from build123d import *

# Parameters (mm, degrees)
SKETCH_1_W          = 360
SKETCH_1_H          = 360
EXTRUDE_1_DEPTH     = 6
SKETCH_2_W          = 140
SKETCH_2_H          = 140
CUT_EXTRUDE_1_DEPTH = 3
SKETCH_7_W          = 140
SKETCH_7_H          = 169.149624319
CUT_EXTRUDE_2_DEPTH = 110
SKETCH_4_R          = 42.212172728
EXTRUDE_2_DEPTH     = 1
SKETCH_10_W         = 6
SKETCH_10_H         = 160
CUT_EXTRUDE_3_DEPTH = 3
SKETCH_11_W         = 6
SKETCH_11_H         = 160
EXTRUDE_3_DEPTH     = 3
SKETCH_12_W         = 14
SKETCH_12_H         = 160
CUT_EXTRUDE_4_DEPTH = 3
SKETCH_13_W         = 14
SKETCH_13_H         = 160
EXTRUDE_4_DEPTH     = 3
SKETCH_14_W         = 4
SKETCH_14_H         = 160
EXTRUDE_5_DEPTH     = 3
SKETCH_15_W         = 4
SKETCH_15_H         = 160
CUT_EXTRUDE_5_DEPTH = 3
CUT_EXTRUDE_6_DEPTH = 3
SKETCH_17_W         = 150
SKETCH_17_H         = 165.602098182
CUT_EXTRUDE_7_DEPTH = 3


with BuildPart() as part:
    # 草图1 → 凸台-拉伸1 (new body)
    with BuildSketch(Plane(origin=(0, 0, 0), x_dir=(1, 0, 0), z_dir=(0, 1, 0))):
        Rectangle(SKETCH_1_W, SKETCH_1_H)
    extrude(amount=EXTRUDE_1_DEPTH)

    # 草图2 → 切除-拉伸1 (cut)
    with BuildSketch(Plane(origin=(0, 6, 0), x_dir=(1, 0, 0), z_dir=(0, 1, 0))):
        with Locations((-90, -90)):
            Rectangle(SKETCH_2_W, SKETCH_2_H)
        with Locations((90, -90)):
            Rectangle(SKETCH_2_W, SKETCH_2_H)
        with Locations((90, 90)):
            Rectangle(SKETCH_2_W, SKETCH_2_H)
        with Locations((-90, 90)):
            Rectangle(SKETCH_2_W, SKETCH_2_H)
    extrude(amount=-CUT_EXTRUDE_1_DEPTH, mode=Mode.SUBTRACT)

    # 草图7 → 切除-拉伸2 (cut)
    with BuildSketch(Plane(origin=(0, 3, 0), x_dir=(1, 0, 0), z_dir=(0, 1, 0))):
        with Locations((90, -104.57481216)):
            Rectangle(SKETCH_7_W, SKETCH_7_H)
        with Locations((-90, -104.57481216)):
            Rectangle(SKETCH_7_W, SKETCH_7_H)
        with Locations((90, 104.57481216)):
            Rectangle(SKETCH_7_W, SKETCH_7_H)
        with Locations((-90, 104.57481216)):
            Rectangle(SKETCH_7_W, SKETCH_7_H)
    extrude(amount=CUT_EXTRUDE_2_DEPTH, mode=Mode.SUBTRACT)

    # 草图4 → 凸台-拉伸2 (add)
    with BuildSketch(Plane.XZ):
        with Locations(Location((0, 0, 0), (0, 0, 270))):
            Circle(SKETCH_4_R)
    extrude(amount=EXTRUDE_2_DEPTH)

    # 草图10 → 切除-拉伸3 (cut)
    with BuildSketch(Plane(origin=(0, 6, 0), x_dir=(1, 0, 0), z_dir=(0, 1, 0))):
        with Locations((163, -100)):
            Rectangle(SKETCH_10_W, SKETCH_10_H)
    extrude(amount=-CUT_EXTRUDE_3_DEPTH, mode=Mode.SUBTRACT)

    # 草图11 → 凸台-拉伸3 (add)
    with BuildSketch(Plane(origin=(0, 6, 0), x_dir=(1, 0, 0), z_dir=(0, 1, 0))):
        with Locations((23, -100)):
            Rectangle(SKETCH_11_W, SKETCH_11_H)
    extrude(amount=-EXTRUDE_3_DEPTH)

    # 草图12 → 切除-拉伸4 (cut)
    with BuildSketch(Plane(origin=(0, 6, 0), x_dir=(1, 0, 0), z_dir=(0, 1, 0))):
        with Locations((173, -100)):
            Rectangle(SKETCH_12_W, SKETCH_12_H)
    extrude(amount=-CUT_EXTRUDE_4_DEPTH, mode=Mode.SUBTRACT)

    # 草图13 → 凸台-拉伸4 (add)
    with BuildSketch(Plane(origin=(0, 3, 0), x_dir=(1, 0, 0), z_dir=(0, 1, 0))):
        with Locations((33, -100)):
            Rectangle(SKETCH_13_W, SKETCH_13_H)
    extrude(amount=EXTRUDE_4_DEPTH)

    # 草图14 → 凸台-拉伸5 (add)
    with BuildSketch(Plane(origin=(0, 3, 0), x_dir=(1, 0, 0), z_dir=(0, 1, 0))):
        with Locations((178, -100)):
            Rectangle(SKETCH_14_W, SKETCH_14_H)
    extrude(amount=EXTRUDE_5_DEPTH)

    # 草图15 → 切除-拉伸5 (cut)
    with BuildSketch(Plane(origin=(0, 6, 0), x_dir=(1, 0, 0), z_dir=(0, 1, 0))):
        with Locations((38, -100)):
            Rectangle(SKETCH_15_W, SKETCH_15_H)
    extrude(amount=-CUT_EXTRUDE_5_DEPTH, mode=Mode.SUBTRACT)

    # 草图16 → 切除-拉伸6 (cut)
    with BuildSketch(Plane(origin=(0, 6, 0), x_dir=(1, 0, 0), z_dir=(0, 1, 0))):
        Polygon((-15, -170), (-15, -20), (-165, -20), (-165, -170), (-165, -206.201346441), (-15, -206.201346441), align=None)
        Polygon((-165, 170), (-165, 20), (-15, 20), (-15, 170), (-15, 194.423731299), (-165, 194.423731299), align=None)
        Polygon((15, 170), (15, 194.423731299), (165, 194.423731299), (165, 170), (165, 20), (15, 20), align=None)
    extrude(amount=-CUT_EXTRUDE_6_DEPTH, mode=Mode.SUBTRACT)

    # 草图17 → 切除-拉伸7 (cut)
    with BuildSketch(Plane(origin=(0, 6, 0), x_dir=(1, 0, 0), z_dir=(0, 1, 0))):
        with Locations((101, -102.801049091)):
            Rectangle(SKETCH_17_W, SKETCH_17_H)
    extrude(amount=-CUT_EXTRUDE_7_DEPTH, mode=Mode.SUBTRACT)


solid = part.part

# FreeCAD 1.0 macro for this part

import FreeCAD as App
import Part
import Sketcher
Q = App.Units.Quantity


def add_polygon(sketch, points):
    """Adds a closed chain of lines whose ends are joined by coincident constraints."""
    first, n = sketch.GeometryCount, len(points)
    for a, b in zip(points, points[1:] + points[:1]):
        sketch.addGeometry(Part.LineSegment(App.Vector(*a, 0), App.Vector(*b, 0)), False)
    for i in range(n):
        sketch.addConstraint(Sketcher.Constraint("Coincident", first + i, 2, first + (i + 1) % n, 1))

doc = App.newDocument("Part")
body = doc.addObject("PartDesign::Body", "Body")

# Sketch on XZ plane
sketch1 = body.newObject("Sketcher::SketchObject", "Sketch")
sketch1.AttachmentSupport = (doc.getObject("XZ_Plane"), [""])
sketch1.MapMode = "FlatFace"
add_polygon(sketch1, [(-180, -180), (-180, 180), (180, 180), (180, -180)])  # lines 0-3
sketch1.addConstraint([
    Sketcher.Constraint("Vertical", 0),
    Sketcher.Constraint("Horizontal", 1),
    Sketcher.Constraint("Vertical", 2),
    Sketcher.Constraint("Horizontal", 3),
    Sketcher.Constraint("Symmetric", 0, 2, 2, 2, -1, 1),
    Sketcher.Constraint("Equal", 3, 0),
    Sketcher.Constraint("DistanceX", 1, 1, 1, 2, Q("360 mm")),
])
pad1 = body.newObject("PartDesign::Pad", "Pad")
pad1.Profile = sketch1
pad1.Length = 6
pad1.Reversed = True

# Sketch on XZ plane
sketch2 = body.newObject("Sketcher::SketchObject", "Sketch001")
sketch2.AttachmentSupport = (doc.getObject("XZ_Plane"), [""])
sketch2.MapMode = "FlatFace"
sketch2.AttachmentOffset = App.Placement(App.Vector(0, 0, -6), App.Rotation())
add_polygon(sketch2, [(-160, 20), (-160, 160), (-20, 160), (-20, 20)])  # lines 0-3
add_polygon(sketch2, [(20, 20), (20, 160), (160, 160), (160, 20)])  # lines 4-7
add_polygon(sketch2, [(20, -160), (20, -20), (160, -20), (160, -160)])  # lines 8-11
add_polygon(sketch2, [(-160, -160), (-160, -20), (-20, -20), (-20, -160)])  # lines 12-15
sketch2.addConstraint([
    Sketcher.Constraint("Vertical", 0),
    Sketcher.Constraint("Horizontal", 1),
    Sketcher.Constraint("Vertical", 2),
    Sketcher.Constraint("Horizontal", 3),
    Sketcher.Constraint("Vertical", 4),
    Sketcher.Constraint("Horizontal", 5),
    Sketcher.Constraint("Vertical", 6),
    Sketcher.Constraint("Horizontal", 7),
    Sketcher.Constraint("Vertical", 8),
    Sketcher.Constraint("Horizontal", 9),
    Sketcher.Constraint("Vertical", 10),
    Sketcher.Constraint("Horizontal", 11),
    Sketcher.Constraint("Vertical", 12),
    Sketcher.Constraint("Horizontal", 13),
    Sketcher.Constraint("Vertical", 14),
    Sketcher.Constraint("Horizontal", 15),
    Sketcher.Constraint("Symmetric", 2, 2, 8, 2, -1, 1),
    Sketcher.Constraint("Symmetric", 0, 2, 10, 2, -1, 1),
    Sketcher.Constraint("Symmetric", 6, 2, 12, 2, -1, 1),
    Sketcher.Constraint("Symmetric", 4, 2, 14, 2, -1, 1),
    Sketcher.Constraint("Symmetric", 1, 2, 4, 2, -2),
    Sketcher.Constraint("Symmetric", 3, 2, 6, 2, -2),
    Sketcher.Constraint("Equal", 15, 0),
    Sketcher.Constraint("DistanceX", 1, 1, 1, 2, Q("140 mm")),
    Sketcher.Constraint("DistanceX", 0, 2, -1, 1, Q("160 mm")),
    Sketcher.Constraint("DistanceY", -1, 1, 0, 2, Q("160 mm")),
])
pocket1 = body.newObject("PartDesign::Pocket", "Pocket")
pocket1.Profile = sketch2
pocket1.Length = 3
pocket1.Reversed = True

# Sketch on XZ plane
sketch3 = body.newObject("Sketcher::SketchObject", "Sketch002")
sketch3.AttachmentSupport = (doc.getObject("XZ_Plane"), [""])
sketch3.MapMode = "FlatFace"
sketch3.AttachmentOffset = App.Placement(App.Vector(0, 0, -3), App.Rotation())
add_polygon(sketch3, [(20, 20), (20, 189.149624), (160, 189.149624), (160, 20)])  # lines 0-3
add_polygon(sketch3, [(-160, 20), (-160, 189.149624), (-20, 189.149624), (-20, 20)])  # lines 4-7
add_polygon(sketch3, [(20, -189.149624), (20, -20), (160, -20), (160, -189.149624)])  # lines 8-11
add_polygon(sketch3, [(-160, -189.149624), (-160, -20), (-20, -20), (-20, -189.149624)])  # lines 12-15
sketch3.addConstraint([
    Sketcher.Constraint("Vertical", 0),
    Sketcher.Constraint("Horizontal", 1),
    Sketcher.Constraint("Vertical", 2),
    Sketcher.Constraint("Horizontal", 3),
    Sketcher.Constraint("Vertical", 4),
    Sketcher.Constraint("Horizontal", 5),
    Sketcher.Constraint("Vertical", 6),
    Sketcher.Constraint("Horizontal", 7),
    Sketcher.Constraint("Vertical", 8),
    Sketcher.Constraint("Horizontal", 9),
    Sketcher.Constraint("Vertical", 10),
    Sketcher.Constraint("Horizontal", 11),
    Sketcher.Constraint("Vertical", 12),
    Sketcher.Constraint("Horizontal", 13),
    Sketcher.Constraint("Vertical", 14),
    Sketcher.Constraint("Horizontal", 15),
    Sketcher.Constraint("Symmetric", 6, 2, 8, 2, -1, 1),
    Sketcher.Constraint("Symmetric", 4, 2, 10, 2, -1, 1),
    Sketcher.Constraint("Symmetric", 2, 2, 12, 2, -1, 1),
    Sketcher.Constraint("Symmetric", 0, 2, 14, 2, -1, 1),
    Sketcher.Constraint("Symmetric", 1, 2, 4, 2, -2),
    Sketcher.Constraint("Symmetric", 3, 2, 6, 2, -2),
    Sketcher.Constraint("DistanceX", 1, 1, 1, 2, Q("140 mm")),
    Sketcher.Constraint("DistanceX", -1, 1, 0, 2, Q("20 mm")),
    Sketcher.Constraint("DistanceY", -1, 1, 2, 2, Q("20 mm")),
    Sketcher.Constraint("DistanceY", 0, 1, 0, 2, Q("169.149624 mm")),
])
pocket2 = body.newObject("PartDesign::Pocket", "Pocket001")
pocket2.Profile = sketch3
pocket2.Length = 110

# Sketch on XZ plane
sketch4 = body.newObject("Sketcher::SketchObject", "Sketch003")
sketch4.AttachmentSupport = (doc.getObject("XZ_Plane"), [""])
sketch4.MapMode = "FlatFace"
sketch4.addGeometry(Part.Circle(App.Vector(0, 0, 0), App.Vector(0, 0, 1), 42.212173), False)
sketch4.addConstraint([
    Sketcher.Constraint("Coincident", 0, 3, -1, 1),
    Sketcher.Constraint("Diameter", 0, Q("84.424345 mm")),
])
pad2 = body.newObject("PartDesign::Pad", "Pad001")
pad2.Profile = sketch4
pad2.Length = 1

# Sketch on XZ plane
sketch5 = body.newObject("Sketcher::SketchObject", "Sketch004")
sketch5.AttachmentSupport = (doc.getObject("XZ_Plane"), [""])
sketch5.MapMode = "FlatFace"
sketch5.AttachmentOffset = App.Placement(App.Vector(0, 0, -6), App.Rotation())
add_polygon(sketch5, [(160, 20), (160, 180), (166, 180), (166, 20)])  # lines 0-3
sketch5.addConstraint([
    Sketcher.Constraint("Vertical", 0),
    Sketcher.Constraint("Horizontal", 1),
    Sketcher.Constraint("Vertical", 2),
    Sketcher.Constraint("Horizontal", 3),
    Sketcher.Constraint("DistanceX", 1, 1, 1, 2, Q("6 mm")),
    Sketcher.Constraint("DistanceY", 0, 1, 0, 2, Q("160 mm")),
    Sketcher.Constraint("DistanceX", -1, 1, 0, 2, Q("160 mm")),
    Sketcher.Constraint("DistanceY", -1, 1, 0, 2, Q("180 mm")),
])
pocket3 = body.newObject("PartDesign::Pocket", "Pocket002")
pocket3.Profile = sketch5
pocket3.Length = 3
pocket3.Reversed = True

# Sketch on XZ plane
sketch6 = body.newObject("Sketcher::SketchObject", "Sketch005")
sketch6.AttachmentSupport = (doc.getObject("XZ_Plane"), [""])
sketch6.MapMode = "FlatFace"
sketch6.AttachmentOffset = App.Placement(App.Vector(0, 0, -6), App.Rotation())
add_polygon(sketch6, [(20, 20), (20, 180), (26, 180), (26, 20)])  # lines 0-3
sketch6.addConstraint([
    Sketcher.Constraint("Vertical", 0),
    Sketcher.Constraint("Horizontal", 1),
    Sketcher.Constraint("Vertical", 2),
    Sketcher.Constraint("Horizontal", 3),
    Sketcher.Constraint("DistanceX", 1, 1, 1, 2, Q("6 mm")),
    Sketcher.Constraint("DistanceY", 0, 1, 0, 2, Q("160 mm")),
    Sketcher.Constraint("DistanceX", -1, 1, 0, 2, Q("20 mm")),
    Sketcher.Constraint("DistanceY", -1, 1, 0, 2, Q("180 mm")),
])
pad3 = body.newObject("PartDesign::Pad", "Pad002")
pad3.Profile = sketch6
pad3.Length = 3

# Sketch on XZ plane
sketch7 = body.newObject("Sketcher::SketchObject", "Sketch006")
sketch7.AttachmentSupport = (doc.getObject("XZ_Plane"), [""])
sketch7.MapMode = "FlatFace"
sketch7.AttachmentOffset = App.Placement(App.Vector(0, 0, -6), App.Rotation())
add_polygon(sketch7, [(166, 20), (166, 180), (180, 180), (180, 20)])  # lines 0-3
sketch7.addConstraint([
    Sketcher.Constraint("Vertical", 0),
    Sketcher.Constraint("Horizontal", 1),
    Sketcher.Constraint("Vertical", 2),
    Sketcher.Constraint("Horizontal", 3),
    Sketcher.Constraint("DistanceX", 1, 1, 1, 2, Q("14 mm")),
    Sketcher.Constraint("DistanceY", 0, 1, 0, 2, Q("160 mm")),
    Sketcher.Constraint("DistanceX", -1, 1, 0, 2, Q("166 mm")),
    Sketcher.Constraint("DistanceY", -1, 1, 0, 2, Q("180 mm")),
])
pocket4 = body.newObject("PartDesign::Pocket", "Pocket003")
pocket4.Profile = sketch7
pocket4.Length = 3
pocket4.Reversed = True

# Sketch on XZ plane
sketch8 = body.newObject("Sketcher::SketchObject", "Sketch007")
sketch8.AttachmentSupport = (doc.getObject("XZ_Plane"), [""])
sketch8.MapMode = "FlatFace"
sketch8.AttachmentOffset = App.Placement(App.Vector(0, 0, -3), App.Rotation())
add_polygon(sketch8, [(26, 20), (26, 180), (40, 180), (40, 20)])  # lines 0-3
sketch8.addConstraint([
    Sketcher.Constraint("Vertical", 0),
    Sketcher.Constraint("Horizontal", 1),
    Sketcher.Constraint("Vertical", 2),
    Sketcher.Constraint("Horizontal", 3),
    Sketcher.Constraint("DistanceX", 1, 1, 1, 2, Q("14 mm")),
    Sketcher.Constraint("DistanceY", 0, 1, 0, 2, Q("160 mm")),
    Sketcher.Constraint("DistanceX", -1, 1, 0, 2, Q("26 mm")),
    Sketcher.Constraint("DistanceY", -1, 1, 0, 2, Q("180 mm")),
])
pad4 = body.newObject("PartDesign::Pad", "Pad003")
pad4.Profile = sketch8
pad4.Length = 3
pad4.Reversed = True

# Sketch on XZ plane
sketch9 = body.newObject("Sketcher::SketchObject", "Sketch008")
sketch9.AttachmentSupport = (doc.getObject("XZ_Plane"), [""])
sketch9.MapMode = "FlatFace"
sketch9.AttachmentOffset = App.Placement(App.Vector(0, 0, -3), App.Rotation())
add_polygon(sketch9, [(176, 20), (176, 180), (180, 180), (180, 20)])  # lines 0-3
sketch9.addConstraint([
    Sketcher.Constraint("Vertical", 0),
    Sketcher.Constraint("Horizontal", 1),
    Sketcher.Constraint("Vertical", 2),
    Sketcher.Constraint("Horizontal", 3),
    Sketcher.Constraint("DistanceX", 1, 1, 1, 2, Q("4 mm")),
    Sketcher.Constraint("DistanceY", 0, 1, 0, 2, Q("160 mm")),
    Sketcher.Constraint("DistanceX", -1, 1, 0, 2, Q("176 mm")),
    Sketcher.Constraint("DistanceY", -1, 1, 0, 2, Q("180 mm")),
])
pad5 = body.newObject("PartDesign::Pad", "Pad004")
pad5.Profile = sketch9
pad5.Length = 3
pad5.Reversed = True

# Sketch on XZ plane
sketch10 = body.newObject("Sketcher::SketchObject", "Sketch009")
sketch10.AttachmentSupport = (doc.getObject("XZ_Plane"), [""])
sketch10.MapMode = "FlatFace"
sketch10.AttachmentOffset = App.Placement(App.Vector(0, 0, -6), App.Rotation())
add_polygon(sketch10, [(36, 20), (36, 180), (40, 180), (40, 20)])  # lines 0-3
sketch10.addConstraint([
    Sketcher.Constraint("Vertical", 0),
    Sketcher.Constraint("Horizontal", 1),
    Sketcher.Constraint("Vertical", 2),
    Sketcher.Constraint("Horizontal", 3),
    Sketcher.Constraint("DistanceX", 1, 1, 1, 2, Q("4 mm")),
    Sketcher.Constraint("DistanceY", 0, 1, 0, 2, Q("160 mm")),
    Sketcher.Constraint("DistanceX", -1, 1, 0, 2, Q("36 mm")),
    Sketcher.Constraint("DistanceY", -1, 1, 0, 2, Q("180 mm")),
])
pocket5 = body.newObject("PartDesign::Pocket", "Pocket004")
pocket5.Profile = sketch10
pocket5.Length = 3
pocket5.Reversed = True

# Sketch on XZ plane
sketch11 = body.newObject("Sketcher::SketchObject", "Sketch010")
sketch11.AttachmentSupport = (doc.getObject("XZ_Plane"), [""])
sketch11.MapMode = "FlatFace"
sketch11.AttachmentOffset = App.Placement(App.Vector(0, 0, -6), App.Rotation())
add_polygon(sketch11, [(-15, 20), (-165, 20), (-165, 206.201346), (-15, 206.201346)])  # lines 0-3
add_polygon(sketch11, [(-165, -20), (-15, -20), (-15, -194.423731), (-165, -194.423731)])  # lines 4-7
add_polygon(sketch11, [(15, -194.423731), (15, -20), (165, -20), (165, -194.423731)])  # lines 8-11
sketch11.addConstraint([
    Sketcher.Constraint("Horizontal", 0),
    Sketcher.Constraint("Vertical", 1),
    Sketcher.Constraint("Horizontal", 2),
    Sketcher.Constraint("Vertical", 3),
    Sketcher.Constraint("Horizontal", 4),
    Sketcher.Constraint("Vertical", 5),
    Sketcher.Constraint("Horizontal", 6),
    Sketcher.Constraint("Vertical", 7),
    Sketcher.Constraint("Vertical", 8),
    Sketcher.Constraint("Horizontal", 9),
    Sketcher.Constraint("Vertical", 10),
    Sketcher.Constraint("Horizontal", 11),
    Sketcher.Constraint("Symmetric", 3, 2, 8, 2, -1, 1),
    Sketcher.Constraint("Symmetric", 4, 2, 8, 2, -2),
    Sketcher.Constraint("Symmetric", 6, 2, 10, 2, -2),
    Sketcher.Constraint("Vertical", 1, 2, 6, 2),
    Sketcher.Constraint("DistanceX", 0, 2, 0, 1, Q("150 mm")),
    Sketcher.Constraint("DistanceX", 0, 2, -1, 1, Q("165 mm")),
    Sketcher.Constraint("DistanceY", -1, 1, 0, 2, Q("20 mm")),
    Sketcher.Constraint("DistanceY", 5, 2, 5, 1, Q("174.423731 mm")),
    Sketcher.Constraint("DistanceY", 1, 1, 1, 2, Q("186.201346 mm")),
])
pocket6 = body.newObject("PartDesign::Pocket", "Pocket005")
pocket6.Profile = sketch11
pocket6.Length = 3
pocket6.Reversed = True

# Sketch on XZ plane
sketch12 = body.newObject("Sketcher::SketchObject", "Sketch011")
sketch12.AttachmentSupport = (doc.getObject("XZ_Plane"), [""])
sketch12.MapMode = "FlatFace"
sketch12.AttachmentOffset = App.Placement(App.Vector(0, 0, -6), App.Rotation())
add_polygon(sketch12, [(26, 20), (26, 185.602098), (176, 185.602098), (176, 20)])  # lines 0-3
sketch12.addConstraint([
    Sketcher.Constraint("Vertical", 0),
    Sketcher.Constraint("Horizontal", 1),
    Sketcher.Constraint("Vertical", 2),
    Sketcher.Constraint("Horizontal", 3),
    Sketcher.Constraint("DistanceX", 1, 1, 1, 2, Q("150 mm")),
    Sketcher.Constraint("DistanceX", -1, 1, 0, 2, Q("26 mm")),
    Sketcher.Constraint("DistanceY", -1, 1, 2, 2, Q("20 mm")),
    Sketcher.Constraint("DistanceY", 0, 1, 0, 2, Q("165.602098 mm")),
])
pocket7 = body.newObject("PartDesign::Pocket", "Pocket006")
pocket7.Profile = sketch12
pocket7.Length = 3
pocket7.Reversed = True

doc.recompute()
